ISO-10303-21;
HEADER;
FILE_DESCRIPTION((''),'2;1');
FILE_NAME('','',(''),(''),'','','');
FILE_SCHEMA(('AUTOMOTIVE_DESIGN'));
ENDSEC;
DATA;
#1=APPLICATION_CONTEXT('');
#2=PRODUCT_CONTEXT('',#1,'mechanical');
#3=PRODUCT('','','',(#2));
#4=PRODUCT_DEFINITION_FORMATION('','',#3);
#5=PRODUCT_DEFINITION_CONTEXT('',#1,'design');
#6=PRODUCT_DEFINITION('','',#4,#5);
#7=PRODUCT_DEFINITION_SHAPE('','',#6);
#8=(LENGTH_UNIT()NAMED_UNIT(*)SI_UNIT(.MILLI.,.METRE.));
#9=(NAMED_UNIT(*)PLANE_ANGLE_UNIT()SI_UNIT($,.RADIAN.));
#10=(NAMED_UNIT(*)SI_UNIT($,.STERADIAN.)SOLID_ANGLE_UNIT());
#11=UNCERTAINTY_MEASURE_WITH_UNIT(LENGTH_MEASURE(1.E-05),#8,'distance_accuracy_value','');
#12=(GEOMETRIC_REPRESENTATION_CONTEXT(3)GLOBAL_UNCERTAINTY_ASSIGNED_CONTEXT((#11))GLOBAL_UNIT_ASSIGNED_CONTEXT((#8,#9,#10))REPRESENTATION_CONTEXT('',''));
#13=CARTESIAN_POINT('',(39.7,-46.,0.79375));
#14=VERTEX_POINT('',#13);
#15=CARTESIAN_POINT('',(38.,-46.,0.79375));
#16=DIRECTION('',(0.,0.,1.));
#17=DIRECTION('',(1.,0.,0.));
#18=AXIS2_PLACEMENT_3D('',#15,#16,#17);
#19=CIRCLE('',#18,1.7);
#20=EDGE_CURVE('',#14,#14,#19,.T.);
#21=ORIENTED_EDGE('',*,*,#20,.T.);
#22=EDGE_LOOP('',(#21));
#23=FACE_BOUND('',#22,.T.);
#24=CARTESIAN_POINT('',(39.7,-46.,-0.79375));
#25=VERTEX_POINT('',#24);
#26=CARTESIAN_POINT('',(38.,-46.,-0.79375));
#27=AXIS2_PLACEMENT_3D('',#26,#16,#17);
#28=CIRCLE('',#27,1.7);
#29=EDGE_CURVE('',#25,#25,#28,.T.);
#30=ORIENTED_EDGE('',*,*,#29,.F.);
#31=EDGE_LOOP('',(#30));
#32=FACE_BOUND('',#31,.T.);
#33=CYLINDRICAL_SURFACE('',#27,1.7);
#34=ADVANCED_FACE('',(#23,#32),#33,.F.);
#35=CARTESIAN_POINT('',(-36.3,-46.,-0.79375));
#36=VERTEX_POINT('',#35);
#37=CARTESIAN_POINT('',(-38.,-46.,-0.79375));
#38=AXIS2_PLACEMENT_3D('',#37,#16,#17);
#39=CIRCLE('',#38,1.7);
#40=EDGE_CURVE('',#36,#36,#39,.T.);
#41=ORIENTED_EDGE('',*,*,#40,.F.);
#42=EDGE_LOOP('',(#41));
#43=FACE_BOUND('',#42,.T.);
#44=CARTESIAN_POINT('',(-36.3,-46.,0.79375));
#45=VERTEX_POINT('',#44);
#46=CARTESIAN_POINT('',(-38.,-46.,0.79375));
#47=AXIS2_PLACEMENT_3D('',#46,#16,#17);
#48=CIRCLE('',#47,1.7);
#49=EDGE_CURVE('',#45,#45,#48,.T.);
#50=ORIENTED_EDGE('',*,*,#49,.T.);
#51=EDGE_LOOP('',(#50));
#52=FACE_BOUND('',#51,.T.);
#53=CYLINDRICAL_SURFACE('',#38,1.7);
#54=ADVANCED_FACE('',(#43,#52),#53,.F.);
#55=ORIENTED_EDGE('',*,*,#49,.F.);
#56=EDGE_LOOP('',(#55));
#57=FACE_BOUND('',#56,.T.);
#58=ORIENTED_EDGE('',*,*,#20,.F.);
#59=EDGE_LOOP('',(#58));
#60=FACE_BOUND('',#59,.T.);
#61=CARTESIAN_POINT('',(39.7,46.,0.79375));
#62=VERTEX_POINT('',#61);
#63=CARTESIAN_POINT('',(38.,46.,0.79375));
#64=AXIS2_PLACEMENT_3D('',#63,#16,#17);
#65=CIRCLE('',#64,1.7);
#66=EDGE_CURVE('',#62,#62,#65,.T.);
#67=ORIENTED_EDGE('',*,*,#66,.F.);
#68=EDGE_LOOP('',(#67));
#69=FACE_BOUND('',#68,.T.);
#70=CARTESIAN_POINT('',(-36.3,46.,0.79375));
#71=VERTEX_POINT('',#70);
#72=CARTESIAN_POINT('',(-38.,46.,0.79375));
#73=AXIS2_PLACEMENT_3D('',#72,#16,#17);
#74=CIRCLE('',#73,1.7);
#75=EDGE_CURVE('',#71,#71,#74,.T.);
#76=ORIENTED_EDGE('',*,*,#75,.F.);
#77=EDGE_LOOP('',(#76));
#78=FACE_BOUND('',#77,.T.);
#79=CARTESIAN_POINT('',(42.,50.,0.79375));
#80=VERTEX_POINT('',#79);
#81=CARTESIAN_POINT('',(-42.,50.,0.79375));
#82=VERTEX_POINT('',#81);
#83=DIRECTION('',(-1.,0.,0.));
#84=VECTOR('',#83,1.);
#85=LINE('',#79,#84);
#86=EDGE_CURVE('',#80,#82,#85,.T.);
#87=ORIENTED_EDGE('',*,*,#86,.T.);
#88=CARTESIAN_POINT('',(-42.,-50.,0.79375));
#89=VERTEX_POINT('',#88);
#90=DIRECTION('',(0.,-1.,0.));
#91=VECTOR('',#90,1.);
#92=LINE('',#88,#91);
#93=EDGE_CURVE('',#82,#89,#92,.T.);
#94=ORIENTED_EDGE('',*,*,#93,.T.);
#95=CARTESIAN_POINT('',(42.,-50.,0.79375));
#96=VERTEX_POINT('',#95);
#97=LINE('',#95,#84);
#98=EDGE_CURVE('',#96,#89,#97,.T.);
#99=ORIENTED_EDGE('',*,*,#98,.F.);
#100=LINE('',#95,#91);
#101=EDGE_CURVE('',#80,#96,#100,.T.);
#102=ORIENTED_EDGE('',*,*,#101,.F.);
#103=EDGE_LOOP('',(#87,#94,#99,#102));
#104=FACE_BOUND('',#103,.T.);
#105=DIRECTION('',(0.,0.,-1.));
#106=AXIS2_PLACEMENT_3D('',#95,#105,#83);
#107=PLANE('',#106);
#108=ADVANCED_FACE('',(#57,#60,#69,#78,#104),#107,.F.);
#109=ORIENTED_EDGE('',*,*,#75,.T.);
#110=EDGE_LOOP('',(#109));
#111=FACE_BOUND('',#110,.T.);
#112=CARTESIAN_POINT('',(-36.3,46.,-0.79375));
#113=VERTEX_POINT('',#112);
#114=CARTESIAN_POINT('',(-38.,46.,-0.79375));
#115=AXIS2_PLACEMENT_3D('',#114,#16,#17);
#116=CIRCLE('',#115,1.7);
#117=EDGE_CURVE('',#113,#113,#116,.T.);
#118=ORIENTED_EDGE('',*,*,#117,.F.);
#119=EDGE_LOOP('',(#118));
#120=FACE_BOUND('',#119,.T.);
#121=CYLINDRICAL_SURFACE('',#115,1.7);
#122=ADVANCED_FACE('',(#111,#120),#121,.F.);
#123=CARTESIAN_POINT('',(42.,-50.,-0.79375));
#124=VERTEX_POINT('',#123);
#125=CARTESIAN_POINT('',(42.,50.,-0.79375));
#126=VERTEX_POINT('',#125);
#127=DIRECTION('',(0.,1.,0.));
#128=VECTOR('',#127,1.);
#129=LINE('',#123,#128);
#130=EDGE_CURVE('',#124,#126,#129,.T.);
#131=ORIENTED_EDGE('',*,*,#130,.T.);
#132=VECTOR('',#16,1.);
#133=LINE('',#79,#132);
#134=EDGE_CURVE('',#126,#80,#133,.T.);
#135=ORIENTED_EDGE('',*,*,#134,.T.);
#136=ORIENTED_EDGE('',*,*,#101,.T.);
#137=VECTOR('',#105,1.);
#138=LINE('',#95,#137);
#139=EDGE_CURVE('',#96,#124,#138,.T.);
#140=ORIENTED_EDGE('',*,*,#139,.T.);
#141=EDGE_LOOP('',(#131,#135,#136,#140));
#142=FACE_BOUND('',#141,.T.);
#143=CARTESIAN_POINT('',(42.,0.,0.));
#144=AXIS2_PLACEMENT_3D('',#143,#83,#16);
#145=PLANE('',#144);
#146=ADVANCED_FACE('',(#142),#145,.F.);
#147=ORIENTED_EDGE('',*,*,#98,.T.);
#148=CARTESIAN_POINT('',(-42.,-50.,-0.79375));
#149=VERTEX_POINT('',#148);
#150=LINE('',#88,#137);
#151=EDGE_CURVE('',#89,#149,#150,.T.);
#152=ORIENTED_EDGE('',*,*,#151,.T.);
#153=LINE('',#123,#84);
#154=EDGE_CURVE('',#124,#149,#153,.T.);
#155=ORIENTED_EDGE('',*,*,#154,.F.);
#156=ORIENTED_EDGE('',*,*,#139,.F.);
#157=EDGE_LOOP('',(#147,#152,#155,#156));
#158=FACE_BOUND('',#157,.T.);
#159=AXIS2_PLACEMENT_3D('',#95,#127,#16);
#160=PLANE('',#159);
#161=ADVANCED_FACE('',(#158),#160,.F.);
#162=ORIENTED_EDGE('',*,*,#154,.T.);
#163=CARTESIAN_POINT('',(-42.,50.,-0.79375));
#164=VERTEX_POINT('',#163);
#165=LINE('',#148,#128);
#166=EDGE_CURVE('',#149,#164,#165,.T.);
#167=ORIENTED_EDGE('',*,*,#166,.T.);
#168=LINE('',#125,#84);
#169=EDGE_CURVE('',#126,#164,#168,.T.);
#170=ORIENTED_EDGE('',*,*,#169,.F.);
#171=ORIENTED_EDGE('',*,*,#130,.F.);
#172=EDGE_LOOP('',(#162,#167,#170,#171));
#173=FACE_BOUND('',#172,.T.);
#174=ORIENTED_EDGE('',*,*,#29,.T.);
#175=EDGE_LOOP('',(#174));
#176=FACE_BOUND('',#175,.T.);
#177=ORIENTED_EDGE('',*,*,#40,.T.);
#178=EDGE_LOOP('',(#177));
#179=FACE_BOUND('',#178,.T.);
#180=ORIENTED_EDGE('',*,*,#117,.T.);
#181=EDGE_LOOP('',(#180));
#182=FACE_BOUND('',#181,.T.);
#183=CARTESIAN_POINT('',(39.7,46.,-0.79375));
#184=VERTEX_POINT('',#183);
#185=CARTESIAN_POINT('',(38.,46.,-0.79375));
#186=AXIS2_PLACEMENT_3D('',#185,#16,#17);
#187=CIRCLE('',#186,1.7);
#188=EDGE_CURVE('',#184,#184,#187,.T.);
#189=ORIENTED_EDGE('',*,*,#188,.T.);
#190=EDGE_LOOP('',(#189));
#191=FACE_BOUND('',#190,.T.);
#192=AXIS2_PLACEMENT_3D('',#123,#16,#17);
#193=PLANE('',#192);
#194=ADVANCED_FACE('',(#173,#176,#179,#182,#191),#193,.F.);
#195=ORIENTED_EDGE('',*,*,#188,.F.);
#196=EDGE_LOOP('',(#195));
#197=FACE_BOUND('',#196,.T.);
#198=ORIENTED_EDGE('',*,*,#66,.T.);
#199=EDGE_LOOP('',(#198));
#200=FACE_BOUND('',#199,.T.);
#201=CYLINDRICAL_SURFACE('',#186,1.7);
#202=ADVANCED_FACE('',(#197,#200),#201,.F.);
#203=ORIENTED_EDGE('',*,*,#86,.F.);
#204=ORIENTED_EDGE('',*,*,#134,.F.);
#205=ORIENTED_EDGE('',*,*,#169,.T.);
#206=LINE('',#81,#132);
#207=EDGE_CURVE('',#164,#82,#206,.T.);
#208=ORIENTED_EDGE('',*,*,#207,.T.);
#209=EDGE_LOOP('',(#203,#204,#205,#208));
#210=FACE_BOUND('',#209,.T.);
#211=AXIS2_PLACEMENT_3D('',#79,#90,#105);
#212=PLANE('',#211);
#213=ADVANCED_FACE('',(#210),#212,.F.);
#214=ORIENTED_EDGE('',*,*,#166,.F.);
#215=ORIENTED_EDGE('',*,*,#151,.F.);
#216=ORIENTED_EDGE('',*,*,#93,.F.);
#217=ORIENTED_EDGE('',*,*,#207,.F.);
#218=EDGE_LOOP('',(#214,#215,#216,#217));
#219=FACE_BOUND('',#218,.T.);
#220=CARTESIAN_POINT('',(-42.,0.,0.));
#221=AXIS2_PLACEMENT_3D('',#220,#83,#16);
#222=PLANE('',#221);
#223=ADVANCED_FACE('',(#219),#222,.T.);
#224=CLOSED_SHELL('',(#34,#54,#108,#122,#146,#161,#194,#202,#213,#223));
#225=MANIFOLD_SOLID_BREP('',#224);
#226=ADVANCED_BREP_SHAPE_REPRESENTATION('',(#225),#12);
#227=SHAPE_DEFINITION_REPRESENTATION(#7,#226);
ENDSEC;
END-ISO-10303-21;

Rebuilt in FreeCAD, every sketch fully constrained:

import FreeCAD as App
import Part
import Sketcher

V = App.Vector
Q = App.Units.Quantity

doc = App.newDocument("Part")
params = doc.addObject("Spreadsheet::Sheet", "Params")
for row, (alias, value) in enumerate([
    ("sketch1_width", "100 mm"),
    ("pad1_length", "84 mm"),
    ("sketch2_diameter", "3.4 mm"),
], start=1):
    params.set(f"A{row}", alias)
    params.set(f"B{row}", "=" + value)
    params.setAlias(f"B{row}", alias)

body = doc.addObject("PartDesign::Body", "Body")

# Sketch on YZ plane
sketch1 = body.newObject("Sketcher::SketchObject", "Sketch")
sketch1.AttachmentSupport = (doc.getObject("YZ_Plane"), [""])
sketch1.MapMode = "FlatFace"
sketch1.addGeometry([
    Part.LineSegment(V(50, 0.79375, 0), V(-50, 0.79375, 0)),
    Part.LineSegment(V(-50, 0.79375, 0), V(-50, -0.79375, 0)),
    Part.LineSegment(V(-50, -0.79375, 0), V(50, -0.79375, 0)),
    Part.LineSegment(V(50, -0.79375, 0), V(50, 0.79375, 0)),
], False)
sketch1.addConstraint([
    Sketcher.Constraint("Coincident", 0, 2, 1, 1),
    Sketcher.Constraint("Coincident", 1, 2, 2, 1),
    Sketcher.Constraint("Coincident", 2, 2, 3, 1),
    Sketcher.Constraint("Coincident", 3, 2, 0, 1),
    Sketcher.Constraint("Horizontal", 0),
    Sketcher.Constraint("Vertical", 1),
    Sketcher.Constraint("Horizontal", 2),
    Sketcher.Constraint("Vertical", 3),
    Sketcher.Constraint("Symmetric", 0, 2, 2, 2, -1, 1),
    Sketcher.Constraint("DistanceX", 0, 2, 0, 1, Q("100 mm")),
    Sketcher.Constraint("DistanceY", 1, 2, 1, 1, Q("1.5875 mm")),
])
sketch1.setExpression("Constraints[9]", "Params.sketch1_width")
pad1 = body.newObject("PartDesign::Pad", "Pad")
pad1.Profile = sketch1
pad1.setExpression("Length", "Params.pad1_length")
pad1.Midplane = True

# Sketch on XY plane
sketch2 = body.newObject("Sketcher::SketchObject", "Sketch001")
sketch2.AttachmentSupport = (doc.getObject("XY_Plane"), [""])
sketch2.MapMode = "FlatFace"
sketch2.AttachmentOffset = App.Placement(V(0, 0, 0.79375), App.Rotation())
sketch2.addGeometry([
    Part.Circle(V(-38, 46, 0), V(0, 0, 1), 1.7),
    Part.Circle(V(38, 46, 0), V(0, 0, 1), 1.7),
    Part.Circle(V(38, -46, 0), V(0, 0, 1), 1.7),
    Part.Circle(V(-38, -46, 0), V(0, 0, 1), 1.7),
], False)
sketch2.addConstraint([
    Sketcher.Constraint("Equal", 0, 1),
    Sketcher.Constraint("Equal", 1, 2),
    Sketcher.Constraint("Equal", 2, 3),
    Sketcher.Constraint("Symmetric", 0, 3, 2, 3, -1, 1),
    Sketcher.Constraint("Symmetric", 1, 3, 3, 3, -1, 1),
    Sketcher.Constraint("Symmetric", 0, 3, 1, 3, -2),
    Sketcher.Constraint("Diameter", 0, Q("3.4 mm")),
    Sketcher.Constraint("DistanceX", 0, 3, -1, 1, Q("38 mm")),
    Sketcher.Constraint("DistanceY", -1, 1, 0, 3, Q("46 mm")),
])
sketch2.setExpression("Constraints[6]", "Params.sketch2_diameter")
pocket1 = body.newObject("PartDesign::Pocket", "Pocket")
pocket1.Profile = sketch2
pocket1.Type = "ThroughAll"

doc.recompute()
